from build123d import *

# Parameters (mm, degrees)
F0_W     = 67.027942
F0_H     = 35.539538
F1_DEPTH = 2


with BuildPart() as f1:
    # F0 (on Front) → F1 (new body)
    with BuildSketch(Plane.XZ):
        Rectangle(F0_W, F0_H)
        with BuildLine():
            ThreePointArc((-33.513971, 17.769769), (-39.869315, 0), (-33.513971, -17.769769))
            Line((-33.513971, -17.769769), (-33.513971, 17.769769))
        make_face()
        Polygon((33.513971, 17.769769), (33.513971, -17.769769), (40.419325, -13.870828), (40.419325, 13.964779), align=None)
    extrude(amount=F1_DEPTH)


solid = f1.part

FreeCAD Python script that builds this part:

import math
import FreeCAD as App
import Part
import Sketcher
Q = App.Units.Quantity

doc = App.newDocument("Part")
body = doc.addObject("PartDesign::Body", "Body")

# Sketch on XZ plane
sketch1 = body.newObject("Sketcher::SketchObject", "Sketch")
sketch1.AttachmentSupport = (doc.getObject("XZ_Plane"), [""])
sketch1.MapMode = "FlatFace"
sketch1.addGeometry(Part.LineSegment(App.Vector(-34, -18, 0), App.Vector(34, -18, 0)), False)
sketch1.addGeometry(Part.LineSegment(App.Vector(34, -18, 0), App.Vector(40, -14, 0)), False)
sketch1.addGeometry(Part.LineSegment(App.Vector(40, -14, 0), App.Vector(40, 14, 0)), False)
sketch1.addGeometry(Part.LineSegment(App.Vector(40, 14, 0), App.Vector(34, 18, 0)), False)
sketch1.addGeometry(Part.LineSegment(App.Vector(34, 18, 0), App.Vector(-34, 18, 0)), False)
sketch1.addGeometry(Part.ArcOfCircle(Part.Circle(App.Vector(-12, 0, 0), App.Vector(0, 0, 1), 28), math.radians(141), math.radians(219)), False)
sketch1.addConstraint(Sketcher.Constraint("Coincident", 0, 2, 1, 1))
sketch1.addConstraint(Sketcher.Constraint("Coincident", 1, 2, 2, 1))
sketch1.addConstraint(Sketcher.Constraint("Coincident", 2, 2, 3, 1))
sketch1.addConstraint(Sketcher.Constraint("Coincident", 3, 2, 4, 1))
sketch1.addConstraint(Sketcher.Constraint("Coincident", 4, 2, 5, 1))
sketch1.addConstraint(Sketcher.Constraint("Coincident", 5, 2, 0, 1))
sketch1.addConstraint(Sketcher.Constraint("Horizontal", 0))
sketch1.addConstraint(Sketcher.Constraint("Vertical", 2))
sketch1.addConstraint(Sketcher.Constraint("Horizontal", 4))
sketch1.addConstraint(Sketcher.Constraint("Symmetric", 0, 2, 4, 2, -1, 1))
sketch1.addConstraint(Sketcher.Constraint("PointOnObject", 5, 3, -1))
sketch1.addConstraint(Sketcher.Constraint("Vertical", 0, 2, 3, 2))
sketch1.addConstraint(Sketcher.Constraint("Radius", 5, Q("28.020127 mm")))
sketch1.addConstraint(Sketcher.Constraint("DistanceX", 0, 1, 0, 2, Q("67.027942 mm")))
sketch1.addConstraint(Sketcher.Constraint("Distance", 3, Q("7.884279 mm")))
sketch1.addConstraint(Sketcher.Constraint("DistanceY", 2, 1, 2, 2, Q("27.835607 mm")))
sketch1.addConstraint(Sketcher.Constraint("DistanceX", 5, 3, -1, 1, Q("11.849188 mm")))
sketch1.addConstraint(Sketcher.Constraint("DistanceY", -1, 1, 2, 2, Q("13.964779 mm")))
pad1 = body.newObject("PartDesign::Pad", "Pad")
pad1.Profile = sketch1
pad1.Length = 2

doc.recompute()
